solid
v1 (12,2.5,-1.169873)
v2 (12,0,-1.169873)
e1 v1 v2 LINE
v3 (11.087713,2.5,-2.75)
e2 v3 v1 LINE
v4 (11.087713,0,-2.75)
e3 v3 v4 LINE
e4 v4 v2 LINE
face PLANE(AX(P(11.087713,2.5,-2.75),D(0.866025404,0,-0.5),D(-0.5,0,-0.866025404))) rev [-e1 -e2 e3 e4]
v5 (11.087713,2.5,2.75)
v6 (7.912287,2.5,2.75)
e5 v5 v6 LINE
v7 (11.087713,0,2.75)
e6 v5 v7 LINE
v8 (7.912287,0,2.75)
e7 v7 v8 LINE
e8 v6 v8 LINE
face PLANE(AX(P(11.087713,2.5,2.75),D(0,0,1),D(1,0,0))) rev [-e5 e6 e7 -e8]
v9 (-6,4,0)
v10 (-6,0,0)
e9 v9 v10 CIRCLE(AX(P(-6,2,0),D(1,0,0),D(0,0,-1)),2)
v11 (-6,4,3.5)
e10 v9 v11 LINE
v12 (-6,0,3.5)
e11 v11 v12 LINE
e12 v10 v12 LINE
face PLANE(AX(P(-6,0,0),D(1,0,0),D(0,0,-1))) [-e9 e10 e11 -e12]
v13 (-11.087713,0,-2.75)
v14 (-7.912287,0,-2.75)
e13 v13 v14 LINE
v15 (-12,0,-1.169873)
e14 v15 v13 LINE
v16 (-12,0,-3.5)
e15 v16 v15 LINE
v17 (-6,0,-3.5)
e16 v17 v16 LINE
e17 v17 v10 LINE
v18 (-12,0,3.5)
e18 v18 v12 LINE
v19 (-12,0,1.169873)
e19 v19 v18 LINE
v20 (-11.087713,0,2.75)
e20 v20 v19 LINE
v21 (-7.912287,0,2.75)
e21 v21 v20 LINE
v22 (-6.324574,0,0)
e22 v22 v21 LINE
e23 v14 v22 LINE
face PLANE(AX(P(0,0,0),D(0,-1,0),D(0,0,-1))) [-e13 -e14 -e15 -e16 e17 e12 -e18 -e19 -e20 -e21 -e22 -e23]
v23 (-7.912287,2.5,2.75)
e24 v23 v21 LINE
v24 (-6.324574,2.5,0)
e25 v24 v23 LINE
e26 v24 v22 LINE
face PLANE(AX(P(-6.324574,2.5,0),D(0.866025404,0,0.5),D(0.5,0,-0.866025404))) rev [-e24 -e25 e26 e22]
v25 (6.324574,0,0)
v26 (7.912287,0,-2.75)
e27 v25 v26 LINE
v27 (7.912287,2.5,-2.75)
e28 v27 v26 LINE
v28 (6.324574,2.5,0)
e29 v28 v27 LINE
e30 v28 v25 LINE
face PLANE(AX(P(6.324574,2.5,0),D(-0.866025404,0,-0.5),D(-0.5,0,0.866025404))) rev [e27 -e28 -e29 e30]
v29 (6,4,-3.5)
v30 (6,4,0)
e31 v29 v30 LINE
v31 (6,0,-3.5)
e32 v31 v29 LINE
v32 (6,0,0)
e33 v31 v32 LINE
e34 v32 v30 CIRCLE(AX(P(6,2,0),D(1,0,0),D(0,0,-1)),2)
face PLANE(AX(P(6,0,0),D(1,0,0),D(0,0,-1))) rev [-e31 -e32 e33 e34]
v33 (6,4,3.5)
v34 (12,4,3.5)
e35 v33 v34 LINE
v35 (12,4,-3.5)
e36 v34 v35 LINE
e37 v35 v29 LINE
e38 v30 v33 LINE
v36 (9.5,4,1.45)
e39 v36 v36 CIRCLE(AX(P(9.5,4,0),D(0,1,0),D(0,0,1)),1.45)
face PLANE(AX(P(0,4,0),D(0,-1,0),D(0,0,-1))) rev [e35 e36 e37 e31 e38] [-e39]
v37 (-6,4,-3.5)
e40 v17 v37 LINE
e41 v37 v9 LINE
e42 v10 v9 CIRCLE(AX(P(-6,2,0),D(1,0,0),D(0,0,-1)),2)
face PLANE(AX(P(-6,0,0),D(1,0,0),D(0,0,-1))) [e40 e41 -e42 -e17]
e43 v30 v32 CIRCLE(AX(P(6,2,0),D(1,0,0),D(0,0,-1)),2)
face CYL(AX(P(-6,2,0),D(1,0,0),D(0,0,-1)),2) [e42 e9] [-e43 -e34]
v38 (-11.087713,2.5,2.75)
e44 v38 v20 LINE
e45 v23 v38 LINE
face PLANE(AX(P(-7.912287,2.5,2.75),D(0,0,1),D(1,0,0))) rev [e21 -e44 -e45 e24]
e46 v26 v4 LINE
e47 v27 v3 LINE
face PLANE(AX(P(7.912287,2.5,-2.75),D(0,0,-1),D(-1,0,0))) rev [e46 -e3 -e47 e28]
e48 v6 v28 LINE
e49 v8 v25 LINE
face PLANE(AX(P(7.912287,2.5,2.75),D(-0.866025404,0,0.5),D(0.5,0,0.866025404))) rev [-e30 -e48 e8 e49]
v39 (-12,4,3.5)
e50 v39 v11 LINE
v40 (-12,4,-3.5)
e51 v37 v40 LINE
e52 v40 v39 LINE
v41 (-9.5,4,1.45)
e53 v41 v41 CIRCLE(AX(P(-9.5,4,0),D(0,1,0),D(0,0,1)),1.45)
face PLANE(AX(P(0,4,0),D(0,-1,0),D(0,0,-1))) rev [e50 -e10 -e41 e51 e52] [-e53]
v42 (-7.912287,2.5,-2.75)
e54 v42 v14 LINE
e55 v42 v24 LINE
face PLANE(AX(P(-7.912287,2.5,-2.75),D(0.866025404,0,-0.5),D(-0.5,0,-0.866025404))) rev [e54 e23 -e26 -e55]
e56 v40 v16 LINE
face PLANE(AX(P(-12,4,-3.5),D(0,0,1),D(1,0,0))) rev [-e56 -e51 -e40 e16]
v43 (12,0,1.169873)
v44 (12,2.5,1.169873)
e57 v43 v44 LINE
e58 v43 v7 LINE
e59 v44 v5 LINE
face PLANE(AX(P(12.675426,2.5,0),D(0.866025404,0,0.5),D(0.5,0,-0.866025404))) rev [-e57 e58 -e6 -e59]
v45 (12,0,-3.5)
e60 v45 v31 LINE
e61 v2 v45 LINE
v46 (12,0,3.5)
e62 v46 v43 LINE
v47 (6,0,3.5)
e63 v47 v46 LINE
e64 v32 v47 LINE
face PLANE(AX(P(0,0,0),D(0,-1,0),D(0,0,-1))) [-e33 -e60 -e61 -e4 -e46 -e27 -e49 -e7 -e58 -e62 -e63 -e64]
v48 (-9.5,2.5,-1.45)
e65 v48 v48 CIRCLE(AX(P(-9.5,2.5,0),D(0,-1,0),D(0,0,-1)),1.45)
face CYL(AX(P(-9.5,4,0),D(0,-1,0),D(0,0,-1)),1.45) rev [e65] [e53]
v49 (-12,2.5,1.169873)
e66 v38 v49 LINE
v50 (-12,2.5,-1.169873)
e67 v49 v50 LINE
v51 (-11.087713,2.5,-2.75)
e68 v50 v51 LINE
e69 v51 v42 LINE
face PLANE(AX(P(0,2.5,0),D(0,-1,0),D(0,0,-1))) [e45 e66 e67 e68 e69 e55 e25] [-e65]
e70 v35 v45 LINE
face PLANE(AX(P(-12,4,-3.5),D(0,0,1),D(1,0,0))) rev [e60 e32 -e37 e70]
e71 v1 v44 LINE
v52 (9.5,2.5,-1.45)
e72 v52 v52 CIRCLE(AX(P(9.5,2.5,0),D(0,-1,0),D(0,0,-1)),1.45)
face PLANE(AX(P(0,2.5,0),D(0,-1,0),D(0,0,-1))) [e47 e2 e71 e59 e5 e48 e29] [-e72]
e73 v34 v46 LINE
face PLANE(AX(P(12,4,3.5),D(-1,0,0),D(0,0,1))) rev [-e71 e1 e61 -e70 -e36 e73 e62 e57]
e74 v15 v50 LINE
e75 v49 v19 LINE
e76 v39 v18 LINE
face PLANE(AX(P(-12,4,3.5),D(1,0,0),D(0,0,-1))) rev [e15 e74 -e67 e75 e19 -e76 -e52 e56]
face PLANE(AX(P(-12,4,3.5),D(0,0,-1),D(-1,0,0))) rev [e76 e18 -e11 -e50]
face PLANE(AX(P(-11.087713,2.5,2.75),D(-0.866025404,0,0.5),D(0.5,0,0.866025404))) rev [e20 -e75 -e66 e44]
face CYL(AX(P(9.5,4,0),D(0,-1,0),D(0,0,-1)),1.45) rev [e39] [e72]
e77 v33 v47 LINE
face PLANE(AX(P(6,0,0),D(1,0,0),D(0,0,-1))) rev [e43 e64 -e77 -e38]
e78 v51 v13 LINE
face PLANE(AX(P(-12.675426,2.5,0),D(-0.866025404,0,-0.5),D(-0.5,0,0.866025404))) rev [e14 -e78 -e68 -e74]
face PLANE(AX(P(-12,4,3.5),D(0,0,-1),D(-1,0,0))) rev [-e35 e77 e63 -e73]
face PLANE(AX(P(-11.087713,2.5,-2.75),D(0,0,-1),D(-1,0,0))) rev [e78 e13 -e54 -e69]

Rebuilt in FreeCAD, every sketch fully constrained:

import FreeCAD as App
import Part
import Sketcher
from FreeCAD import Vector
Q = App.Units.Quantity


def add_polygon(sketch, points):
    """Adds a closed chain of lines whose ends are joined by coincident constraints."""
    first, n = sketch.GeometryCount, len(points)
    for a, b in zip(points, points[1:] + points[:1]):
        sketch.addGeometry(Part.LineSegment(App.Vector(*a, 0), App.Vector(*b, 0)), False)
    for i in range(n):
        sketch.addConstraint(Sketcher.Constraint("Coincident", first + i, 2, first + (i + 1) % n, 1))

doc = App.newDocument("Part")
body = doc.addObject("PartDesign::Body", "Body")

sketch1 = body.newObject("Sketcher::SketchObject", "Sketch")
sketch1.AttachmentSupport = (doc.getObject("XZ_Plane"), [""])
sketch1.MapMode = "FlatFace"
add_polygon(sketch1, [(-12, -3.5), (-12, 3.5), (12, 3.5), (12, -3.5)])
sketch1.addGeometry(Part.Circle(Vector(-9.5, 0, 0), Vector(0, 0, 1), 1.45), False)
sketch1.addGeometry(Part.Circle(Vector(9.5, 0, 0), Vector(0, 0, 1), 1.45), False)
sketch1.addConstraint([
    Sketcher.Constraint("Vertical", 0),
    Sketcher.Constraint("Horizontal", 1),
    Sketcher.Constraint("Vertical", 2),
    Sketcher.Constraint("Horizontal", 3),
    Sketcher.Constraint("Equal", 4, 5),
    Sketcher.Constraint("Symmetric", 4, 3, 5, 3, -1, 1),
    Sketcher.Constraint("Symmetric", 0, 2, 2, 2, -1, 1),
    Sketcher.Constraint("PointOnObject", 4, 3, -1),
    Sketcher.Constraint("Diameter", 4, 2.9),
    Sketcher.Constraint("DistanceX", 1, 1, 1, 2, 24.0),
    Sketcher.Constraint("DistanceY", 0, 1, 0, 2, 7.0),
    Sketcher.Constraint("DistanceX", 4, 3, 5, 3, 19.0),
])
pad1 = body.newObject("PartDesign::Pad", "Pad")
pad1.Profile = sketch1
pad1.Length = 4
pad1.Reversed = True

sketch2 = body.newObject("Sketcher::SketchObject", "Sketch001")
sketch2.AttachmentSupport = (doc.getObject("XZ_Plane"), [""])
sketch2.MapMode = "FlatFace"
add_polygon(sketch2, [(-7.912287, 2.75), (-11.087713, 2.75), (-12.675426, 0), (-11.087713, -2.75), (-7.912287, -2.75), (-6.324574, 0)])
add_polygon(sketch2, [(7.912287, -2.75), (11.087713, -2.75), (12.675426, 0), (11.087713, 2.75), (7.912287, 2.75), (6.324574, 0)])
sketch2.addConstraint([
    Sketcher.Constraint("Horizontal", 0),
    Sketcher.Constraint("Horizontal", 3),
    Sketcher.Constraint("Horizontal", 6),
    Sketcher.Constraint("Horizontal", 9),
    Sketcher.Constraint("Symmetric", 0, 2, 6, 2, -1, 1),
    Sketcher.Constraint("Symmetric", 1, 2, 7, 2, -1, 1),
    Sketcher.Constraint("Symmetric", 2, 2, 8, 2, -1, 1),
    Sketcher.Constraint("Symmetric", 4, 2, 10, 2, -1, 1),
    Sketcher.Constraint("Symmetric", 2, 2, 6, 2, -2),
    Sketcher.Constraint("PointOnObject", 1, 2, -1),
    Sketcher.Constraint("PointOnObject", 4, 2, -1),
    Sketcher.Constraint("Parallel", 1, 4),
    Sketcher.Constraint("Parallel", 2, 5),
    Sketcher.Constraint("Parallel", 7, 10),
    Sketcher.Constraint("Parallel", 8, 11),
    Sketcher.Constraint("Angle", 1, Q("-120 deg")),
    Sketcher.Constraint("DistanceX", 3, 2, 6, 2, 19.0),
    Sketcher.Constraint("DistanceY", 2, 2, 0, 2, 5.5),
    Sketcher.Constraint("DistanceX", 0, 2, 0, 1, 3.175426),
])
pocket1 = body.newObject("PartDesign::Pocket", "Pocket")
pocket1.Profile = sketch2
pocket1.Length = 2.5

sketch3 = body.newObject("Sketcher::SketchObject", "Sketch002")
sketch3.AttachmentSupport = (doc.getObject("YZ_Plane"), [""])
sketch3.MapMode = "FlatFace"
add_polygon(sketch3, [(4.464246, 3.90439), (-0.691825, 3.90439), (-0.691825, -4.281317), (4.464246, -4.281317)])
sketch3.addGeometry(Part.Circle(Vector(2, 0, 0), Vector(0, 0, 1), 2), False)
sketch3.addConstraint([
    Sketcher.Constraint("Horizontal", 0),
    Sketcher.Constraint("Vertical", 1),
    Sketcher.Constraint("Horizontal", 2),
    Sketcher.Constraint("Vertical", 3),
    Sketcher.Constraint("PointOnObject", 4, 3, -1),
    Sketcher.Constraint("Diameter", 4, 4.0),
    Sketcher.Constraint("DistanceX", -1, 1, 4, 3, 2.0),
    Sketcher.Constraint("DistanceX", 0, 2, 0, 1, 5.156071),
    Sketcher.Constraint("DistanceY", 1, 2, 1, 1, 8.185707),
    Sketcher.Constraint("DistanceY", -1, 1, 0, 2, 3.90439),
    Sketcher.Constraint("DistanceX", 0, 2, -1, 1, 0.691825),
])
pocket2 = body.newObject("PartDesign::Pocket", "Pocket001")
pocket2.Profile = sketch3
pocket2.Length = 12
pocket2.Midplane = True

doc.recompute()
